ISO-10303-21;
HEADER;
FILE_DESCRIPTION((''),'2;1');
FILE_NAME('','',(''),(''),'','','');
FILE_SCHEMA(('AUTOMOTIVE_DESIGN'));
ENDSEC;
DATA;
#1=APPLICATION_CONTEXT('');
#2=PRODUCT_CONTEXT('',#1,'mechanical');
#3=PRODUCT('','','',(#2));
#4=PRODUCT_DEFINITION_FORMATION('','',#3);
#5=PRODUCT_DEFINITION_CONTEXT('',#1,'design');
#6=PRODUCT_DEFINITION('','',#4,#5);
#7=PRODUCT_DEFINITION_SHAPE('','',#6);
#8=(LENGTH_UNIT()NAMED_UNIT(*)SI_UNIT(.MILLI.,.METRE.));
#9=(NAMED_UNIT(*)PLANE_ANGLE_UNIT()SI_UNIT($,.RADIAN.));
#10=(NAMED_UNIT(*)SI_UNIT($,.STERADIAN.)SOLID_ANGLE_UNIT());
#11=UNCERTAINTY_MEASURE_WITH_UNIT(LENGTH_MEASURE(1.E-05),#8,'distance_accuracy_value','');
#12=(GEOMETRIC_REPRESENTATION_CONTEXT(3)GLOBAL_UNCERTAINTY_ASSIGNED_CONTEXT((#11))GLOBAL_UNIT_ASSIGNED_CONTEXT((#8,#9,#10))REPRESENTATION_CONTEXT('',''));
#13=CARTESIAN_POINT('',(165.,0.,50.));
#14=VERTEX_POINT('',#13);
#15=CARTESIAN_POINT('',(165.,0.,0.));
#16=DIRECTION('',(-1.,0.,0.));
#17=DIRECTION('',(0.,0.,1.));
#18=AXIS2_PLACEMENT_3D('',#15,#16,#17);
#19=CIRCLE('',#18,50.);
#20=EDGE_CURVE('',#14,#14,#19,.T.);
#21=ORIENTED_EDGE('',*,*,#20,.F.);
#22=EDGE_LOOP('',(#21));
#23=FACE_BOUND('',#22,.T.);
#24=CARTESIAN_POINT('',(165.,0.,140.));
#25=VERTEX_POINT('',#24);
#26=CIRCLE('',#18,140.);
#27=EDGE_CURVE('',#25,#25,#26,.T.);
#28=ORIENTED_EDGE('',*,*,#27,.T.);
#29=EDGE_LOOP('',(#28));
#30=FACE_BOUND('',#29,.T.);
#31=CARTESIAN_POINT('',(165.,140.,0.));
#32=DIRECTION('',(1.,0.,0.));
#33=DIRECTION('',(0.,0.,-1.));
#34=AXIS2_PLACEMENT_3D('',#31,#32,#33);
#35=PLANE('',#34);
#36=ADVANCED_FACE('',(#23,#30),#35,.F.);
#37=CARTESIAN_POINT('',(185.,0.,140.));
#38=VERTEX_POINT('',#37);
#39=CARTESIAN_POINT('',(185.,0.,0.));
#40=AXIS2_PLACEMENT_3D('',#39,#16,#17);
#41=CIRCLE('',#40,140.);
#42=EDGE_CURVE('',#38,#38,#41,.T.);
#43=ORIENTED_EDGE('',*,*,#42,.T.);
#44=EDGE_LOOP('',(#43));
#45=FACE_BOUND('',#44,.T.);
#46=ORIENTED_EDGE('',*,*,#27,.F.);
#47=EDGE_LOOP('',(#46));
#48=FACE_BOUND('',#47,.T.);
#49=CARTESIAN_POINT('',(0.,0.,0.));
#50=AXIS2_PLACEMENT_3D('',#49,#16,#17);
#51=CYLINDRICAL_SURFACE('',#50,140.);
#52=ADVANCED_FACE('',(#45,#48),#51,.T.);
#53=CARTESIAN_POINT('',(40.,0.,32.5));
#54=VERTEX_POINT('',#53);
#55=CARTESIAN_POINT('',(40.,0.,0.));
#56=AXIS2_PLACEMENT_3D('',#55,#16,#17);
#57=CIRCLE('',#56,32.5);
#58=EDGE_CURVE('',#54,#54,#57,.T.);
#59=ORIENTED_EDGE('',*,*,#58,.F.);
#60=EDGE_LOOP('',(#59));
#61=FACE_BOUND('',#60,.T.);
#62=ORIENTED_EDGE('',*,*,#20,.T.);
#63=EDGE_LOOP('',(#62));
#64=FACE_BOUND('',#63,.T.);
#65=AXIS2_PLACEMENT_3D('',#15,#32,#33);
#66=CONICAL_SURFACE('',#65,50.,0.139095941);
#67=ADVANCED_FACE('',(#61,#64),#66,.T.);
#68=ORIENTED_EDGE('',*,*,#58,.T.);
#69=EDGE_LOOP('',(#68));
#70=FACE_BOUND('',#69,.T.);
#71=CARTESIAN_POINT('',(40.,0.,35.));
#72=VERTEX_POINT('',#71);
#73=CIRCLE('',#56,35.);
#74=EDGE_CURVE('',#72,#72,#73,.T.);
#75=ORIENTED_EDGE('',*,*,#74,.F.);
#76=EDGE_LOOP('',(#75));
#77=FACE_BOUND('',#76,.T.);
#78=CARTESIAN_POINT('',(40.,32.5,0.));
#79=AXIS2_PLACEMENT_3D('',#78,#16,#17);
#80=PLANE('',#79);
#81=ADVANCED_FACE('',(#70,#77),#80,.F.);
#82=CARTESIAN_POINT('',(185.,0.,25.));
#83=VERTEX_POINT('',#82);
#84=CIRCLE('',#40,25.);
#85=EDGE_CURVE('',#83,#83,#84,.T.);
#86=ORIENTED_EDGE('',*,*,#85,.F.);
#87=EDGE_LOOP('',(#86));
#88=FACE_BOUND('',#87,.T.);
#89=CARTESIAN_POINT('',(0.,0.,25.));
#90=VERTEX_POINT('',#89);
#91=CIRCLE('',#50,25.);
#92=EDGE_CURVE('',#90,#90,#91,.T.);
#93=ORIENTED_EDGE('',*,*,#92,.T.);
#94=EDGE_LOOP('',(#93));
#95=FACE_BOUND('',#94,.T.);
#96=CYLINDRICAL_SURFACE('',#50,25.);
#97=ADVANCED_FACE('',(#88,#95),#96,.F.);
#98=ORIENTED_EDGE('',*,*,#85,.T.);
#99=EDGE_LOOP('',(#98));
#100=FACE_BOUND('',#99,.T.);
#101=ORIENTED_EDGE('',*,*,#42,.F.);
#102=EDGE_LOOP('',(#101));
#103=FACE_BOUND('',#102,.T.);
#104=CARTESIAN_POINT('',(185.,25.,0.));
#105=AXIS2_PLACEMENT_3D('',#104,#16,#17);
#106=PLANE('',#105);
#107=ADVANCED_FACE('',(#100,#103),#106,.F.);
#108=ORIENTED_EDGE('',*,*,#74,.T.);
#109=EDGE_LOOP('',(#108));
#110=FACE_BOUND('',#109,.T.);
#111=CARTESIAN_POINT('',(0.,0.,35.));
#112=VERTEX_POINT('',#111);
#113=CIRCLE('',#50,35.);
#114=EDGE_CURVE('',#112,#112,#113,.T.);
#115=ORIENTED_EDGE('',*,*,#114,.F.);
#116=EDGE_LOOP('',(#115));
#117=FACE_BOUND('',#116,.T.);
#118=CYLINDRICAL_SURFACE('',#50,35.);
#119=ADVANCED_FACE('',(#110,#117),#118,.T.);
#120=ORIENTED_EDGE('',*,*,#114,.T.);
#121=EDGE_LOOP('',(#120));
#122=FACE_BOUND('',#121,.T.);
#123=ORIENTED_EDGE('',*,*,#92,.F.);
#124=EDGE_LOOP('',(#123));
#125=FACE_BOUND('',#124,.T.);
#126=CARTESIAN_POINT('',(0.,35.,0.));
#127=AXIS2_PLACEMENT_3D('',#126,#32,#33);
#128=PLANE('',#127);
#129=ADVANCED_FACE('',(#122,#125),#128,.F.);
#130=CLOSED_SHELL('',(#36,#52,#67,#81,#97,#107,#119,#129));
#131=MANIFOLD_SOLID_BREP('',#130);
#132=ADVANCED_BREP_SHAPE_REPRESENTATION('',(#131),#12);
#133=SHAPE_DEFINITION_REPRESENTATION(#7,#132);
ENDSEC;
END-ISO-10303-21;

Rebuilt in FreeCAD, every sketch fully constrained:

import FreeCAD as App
import Part
import Sketcher

V = App.Vector

doc = App.newDocument("Part")
body = doc.addObject("PartDesign::Body", "Body")

# Sketch on XY plane
sketch1 = body.newObject("Sketcher::SketchObject", "Sketch")
sketch1.AttachmentSupport = (doc.getObject("XY_Plane"), [""])
sketch1.MapMode = "FlatFace"
sketch1.addGeometry(Part.LineSegment(V(185, 25, 0), V(185, 140, 0)), False)
sketch1.addGeometry(Part.LineSegment(V(185, 140, 0), V(165, 140, 0)), False)
sketch1.addGeometry(Part.LineSegment(V(165, 140, 0), V(165, 50, 0)), False)
sketch1.addGeometry(Part.LineSegment(V(165, 50, 0), V(40, 32.5, 0)), False)
sketch1.addGeometry(Part.LineSegment(V(40, 32.5, 0), V(40, 35, 0)), False)
sketch1.addGeometry(Part.LineSegment(V(40, 35, 0), V(0, 35, 0)), False)
sketch1.addGeometry(Part.LineSegment(V(0, 35, 0), V(0, 25, 0)), False)
sketch1.addGeometry(Part.LineSegment(V(0, 25, 0), V(185, 25, 0)), False)
sketch1.addConstraint(Sketcher.Constraint("Coincident", 0, 2, 1, 1))
sketch1.addConstraint(Sketcher.Constraint("Coincident", 1, 2, 2, 1))
sketch1.addConstraint(Sketcher.Constraint("Coincident", 2, 2, 3, 1))
sketch1.addConstraint(Sketcher.Constraint("Coincident", 3, 2, 4, 1))
sketch1.addConstraint(Sketcher.Constraint("Coincident", 4, 2, 5, 1))
sketch1.addConstraint(Sketcher.Constraint("Coincident", 5, 2, 6, 1))
sketch1.addConstraint(Sketcher.Constraint("Coincident", 6, 2, 7, 1))
sketch1.addConstraint(Sketcher.Constraint("Coincident", 7, 2, 0, 1))
sketch1.addConstraint(Sketcher.Constraint("Vertical", 0))
sketch1.addConstraint(Sketcher.Constraint("Horizontal", 1))
sketch1.addConstraint(Sketcher.Constraint("Vertical", 2))
sketch1.addConstraint(Sketcher.Constraint("Vertical", 4))
sketch1.addConstraint(Sketcher.Constraint("Horizontal", 5))
sketch1.addConstraint(Sketcher.Constraint("Vertical", 6))
sketch1.addConstraint(Sketcher.Constraint("Horizontal", 7))
sketch1.addConstraint(Sketcher.Constraint("PointOnObject", 5, 2, -2))
sketch1.addConstraint(Sketcher.Constraint("DistanceX", 1, 2, 1, 1, 20.0))
sketch1.addConstraint(Sketcher.Constraint("DistanceX", 5, 2, 5, 1, 40.0))
sketch1.addConstraint(Sketcher.Constraint("DistanceX", 7, 1, 7, 2, 185.0))
sketch1.addConstraint(Sketcher.Constraint("DistanceY", 0, 1, 0, 2, 115.0))
sketch1.addConstraint(Sketcher.Constraint("DistanceY", 2, 2, 2, 1, 90.0))
sketch1.addConstraint(Sketcher.Constraint("DistanceY", 6, 2, 6, 1, 10.0))
sketch1.addConstraint(Sketcher.Constraint("DistanceY", 4, 1, 4, 2, 2.5))
sketch1.addConstraint(Sketcher.Constraint("DistanceY", -1, 1, 0, 2, 140.0))
revolution = body.newObject("PartDesign::Revolution", "Revolution")
revolution.Profile = sketch1
revolution.ReferenceAxis = (sketch1, ["H_Axis"])
revolution.Angle = 360

doc.recompute()
